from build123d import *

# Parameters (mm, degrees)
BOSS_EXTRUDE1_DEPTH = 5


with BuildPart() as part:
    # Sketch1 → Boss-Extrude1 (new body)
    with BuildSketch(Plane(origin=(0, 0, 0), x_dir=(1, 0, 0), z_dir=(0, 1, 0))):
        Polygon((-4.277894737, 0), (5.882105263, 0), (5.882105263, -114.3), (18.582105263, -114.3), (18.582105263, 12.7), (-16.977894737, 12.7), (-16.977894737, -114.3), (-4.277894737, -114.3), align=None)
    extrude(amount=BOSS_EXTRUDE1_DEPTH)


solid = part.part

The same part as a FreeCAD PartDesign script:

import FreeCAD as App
import Part
import Sketcher
from FreeCAD import Vector
Q = App.Units.Quantity


def add_polygon(sketch, points):
    """Adds a closed chain of lines whose ends are joined by coincident constraints."""
    first, n = sketch.GeometryCount, len(points)
    for a, b in zip(points, points[1:] + points[:1]):
        sketch.addGeometry(Part.LineSegment(App.Vector(*a, 0), App.Vector(*b, 0)), False)
    for i in range(n):
        sketch.addConstraint(Sketcher.Constraint("Coincident", first + i, 2, first + (i + 1) % n, 1))

doc = App.newDocument("Part")
params = doc.addObject("Spreadsheet::Sheet", "Params")
for row, (alias, value) in enumerate([
    ("sketch1_height", "5 in"),
    ("sketch1_width", "0.4 in"),
    ("sketch1_width2", "0.5 in"),
    ("sketch1_height2", "4.5 in"),
    ("pad1_length", "5 mm"),
], start=1):
    params.set(f"A{row}", alias)
    params.set(f"B{row}", "=" + value)
    params.setAlias(f"B{row}", alias)

body = doc.addObject("PartDesign::Body", "Body")

sketch1 = doc.addObject("Sketcher::SketchObject", "Sketch")
body.addObject(sketch1)
sketch1.AttachmentSupport = (doc.XZ_Plane, [""])
sketch1.MapMode = "FlatFace"
add_polygon(sketch1, [(-4, 0), (6, 0), (6, 114), (19, 114), (19, -13), (-17, -13), (-17, 114), (-4, 114)])
sketch1.addConstraint([
    Sketcher.Constraint("Horizontal", 0),
    Sketcher.Constraint("Vertical", 1),
    Sketcher.Constraint("Horizontal", 2),
    Sketcher.Constraint("Vertical", 3),
    Sketcher.Constraint("Horizontal", 4),
    Sketcher.Constraint("Vertical", 5),
    Sketcher.Constraint("Horizontal", 6),
    Sketcher.Constraint("Vertical", 7),
    Sketcher.Constraint("PointOnObject", 0, 2, -1),
    Sketcher.Constraint("Horizontal", 2, 2, 5, 2),
    Sketcher.Constraint("Equal", 2, 6),
    Sketcher.Constraint("DistanceY", 3, 2, 3, 1, Q("5 in")),
    Sketcher.Constraint("DistanceX", 0, 1, 0, 2, Q("0.4 in")),
    Sketcher.Constraint("DistanceX", 2, 1, 2, 2, Q("0.5 in")),
    Sketcher.Constraint("DistanceY", 1, 1, 1, 2, Q("4.5 in")),
    Sketcher.Constraint("DistanceX", -1, 1, 0, 2, 5.882105),
])
sketch1.setExpression("Constraints[19]", "Params.sketch1_height")
sketch1.setExpression("Constraints[20]", "Params.sketch1_width")
sketch1.setExpression("Constraints[21]", "Params.sketch1_width2")
sketch1.setExpression("Constraints[22]", "Params.sketch1_height2")
pad1 = doc.addObject("PartDesign::Pad", "Pad")
body.addObject(pad1)
pad1.Profile = sketch1
pad1.setExpression("Length", "Params.pad1_length")
pad1.Reversed = True

doc.recompute()
